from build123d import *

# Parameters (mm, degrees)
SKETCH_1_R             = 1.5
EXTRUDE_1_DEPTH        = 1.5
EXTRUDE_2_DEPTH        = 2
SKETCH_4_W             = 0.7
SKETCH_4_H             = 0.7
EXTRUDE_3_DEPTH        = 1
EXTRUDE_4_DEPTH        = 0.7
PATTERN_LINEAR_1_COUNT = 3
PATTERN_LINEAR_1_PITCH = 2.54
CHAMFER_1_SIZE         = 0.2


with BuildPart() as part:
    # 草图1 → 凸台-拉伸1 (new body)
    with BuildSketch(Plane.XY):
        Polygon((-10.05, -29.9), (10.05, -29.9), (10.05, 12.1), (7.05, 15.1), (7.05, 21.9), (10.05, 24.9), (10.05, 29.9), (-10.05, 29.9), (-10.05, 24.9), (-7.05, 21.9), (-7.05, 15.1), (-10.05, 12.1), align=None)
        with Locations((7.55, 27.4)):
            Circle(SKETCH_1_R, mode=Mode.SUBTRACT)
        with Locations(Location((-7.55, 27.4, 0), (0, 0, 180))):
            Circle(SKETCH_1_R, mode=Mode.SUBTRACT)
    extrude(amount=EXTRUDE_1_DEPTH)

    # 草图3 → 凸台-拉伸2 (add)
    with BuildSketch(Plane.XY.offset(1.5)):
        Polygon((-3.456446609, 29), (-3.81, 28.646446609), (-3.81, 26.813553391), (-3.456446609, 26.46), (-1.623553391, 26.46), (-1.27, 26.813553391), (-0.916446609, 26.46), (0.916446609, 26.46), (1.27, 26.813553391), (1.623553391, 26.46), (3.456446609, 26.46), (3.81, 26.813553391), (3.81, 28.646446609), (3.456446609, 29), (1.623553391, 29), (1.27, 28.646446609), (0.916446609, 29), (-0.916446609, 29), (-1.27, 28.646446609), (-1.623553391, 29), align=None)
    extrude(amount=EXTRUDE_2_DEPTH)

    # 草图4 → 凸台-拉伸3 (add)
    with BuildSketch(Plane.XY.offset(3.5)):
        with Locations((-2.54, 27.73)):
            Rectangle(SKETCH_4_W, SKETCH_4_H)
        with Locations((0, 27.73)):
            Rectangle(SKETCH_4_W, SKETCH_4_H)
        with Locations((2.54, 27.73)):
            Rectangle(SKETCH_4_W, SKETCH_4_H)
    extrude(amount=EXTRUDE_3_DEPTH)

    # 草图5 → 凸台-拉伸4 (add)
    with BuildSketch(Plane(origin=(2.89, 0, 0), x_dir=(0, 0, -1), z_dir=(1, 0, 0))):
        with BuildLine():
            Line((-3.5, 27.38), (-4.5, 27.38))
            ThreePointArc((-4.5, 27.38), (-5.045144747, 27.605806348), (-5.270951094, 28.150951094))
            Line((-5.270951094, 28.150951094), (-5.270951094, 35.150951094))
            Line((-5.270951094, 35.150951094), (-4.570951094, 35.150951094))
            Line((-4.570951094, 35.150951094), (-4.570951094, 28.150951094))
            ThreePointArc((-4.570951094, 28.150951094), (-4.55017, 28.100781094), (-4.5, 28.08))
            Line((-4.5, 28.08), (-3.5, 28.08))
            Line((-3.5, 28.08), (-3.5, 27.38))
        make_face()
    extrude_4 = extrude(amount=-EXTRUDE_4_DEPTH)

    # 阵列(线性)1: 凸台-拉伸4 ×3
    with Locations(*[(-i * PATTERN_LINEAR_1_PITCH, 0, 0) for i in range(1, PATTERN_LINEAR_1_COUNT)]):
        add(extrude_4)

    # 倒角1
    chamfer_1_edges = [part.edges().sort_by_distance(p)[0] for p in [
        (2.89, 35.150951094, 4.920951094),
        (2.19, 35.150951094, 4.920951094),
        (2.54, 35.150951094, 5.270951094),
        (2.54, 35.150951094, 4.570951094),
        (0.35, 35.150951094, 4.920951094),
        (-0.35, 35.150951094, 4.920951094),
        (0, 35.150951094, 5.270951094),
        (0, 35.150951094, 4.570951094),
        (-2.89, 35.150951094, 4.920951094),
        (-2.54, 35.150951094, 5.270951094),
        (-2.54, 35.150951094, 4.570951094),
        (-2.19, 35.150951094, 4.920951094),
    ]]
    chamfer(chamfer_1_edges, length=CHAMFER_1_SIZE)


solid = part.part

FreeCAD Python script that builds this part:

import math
import FreeCAD as App
import Part
import Sketcher
from FreeCAD import Vector
Q = App.Units.Quantity


def edges_at(feature, points):
    """Names of the edges that pass closest to the given points."""
    edges = feature.Shape.Edges
    near = lambda p: min(range(len(edges)), key=lambda i: edges[i].distToShape(Part.Vertex(*p))[0])
    return sorted({f"Edge{near(p) + 1}" for p in points})


def add_polygon(sketch, points):
    """Adds a closed chain of lines whose ends are joined by coincident constraints."""
    first, n = sketch.GeometryCount, len(points)
    for a, b in zip(points, points[1:] + points[:1]):
        sketch.addGeometry(Part.LineSegment(App.Vector(*a, 0), App.Vector(*b, 0)), False)
    for i in range(n):
        sketch.addConstraint(Sketcher.Constraint("Coincident", first + i, 2, first + (i + 1) % n, 1))

doc = App.newDocument("Part")
body = doc.addObject("PartDesign::Body", "Body")

sketch1 = doc.addObject("Sketcher::SketchObject", "Sketch")
body.addObject(sketch1)
sketch1.AttachmentSupport = (doc.XY_Plane, [""])
sketch1.MapMode = "FlatFace"
add_polygon(sketch1, [(-10.1, -29.9), (10.1, -29.9), (10.1, 12.1), (7, 15.1), (7, 21.9), (10.1, 24.9), (10.1, 29.9), (-10.1, 29.9), (-10.1, 24.9), (-7, 21.9), (-7, 15.1), (-10.1, 12.1)])
sketch1.addGeometry(Part.Circle(Vector(-7.5, 27.4, 0), Vector(0, 0, 1), 1.5), False)
sketch1.addGeometry(Part.Circle(Vector(7.5, 27.4, 0), Vector(0, 0, 1), 1.5), False)
sketch1.addConstraint([
    Sketcher.Constraint("Horizontal", 0),
    Sketcher.Constraint("Vertical", 1),
    Sketcher.Constraint("Vertical", 3),
    Sketcher.Constraint("Vertical", 5),
    Sketcher.Constraint("Horizontal", 6),
    Sketcher.Constraint("Vertical", 7),
    Sketcher.Constraint("Vertical", 9),
    Sketcher.Constraint("Vertical", 11),
    Sketcher.Constraint("Equal", 12, 13),
    Sketcher.Constraint("Symmetric", 0, 2, 6, 2, -1, 1),
    Sketcher.Constraint("Symmetric", 12, 3, 13, 3, -2),
    Sketcher.Constraint("Symmetric", 4, 2, 7, 2, -2),
    Sketcher.Constraint("Symmetric", 3, 2, 8, 2, -2),
    Sketcher.Constraint("Symmetric", 1, 2, 10, 2, -2),
    Sketcher.Constraint("Perpendicular", 2, 4),
    Sketcher.Constraint("Perpendicular", 4, 8),
    Sketcher.Constraint("Perpendicular", 8, 10),
    Sketcher.Constraint("Diameter", 12, Q("3 mm")),
    Sketcher.Constraint("DistanceY", 1, 1, 1, 2, Q("42 mm")),
    Sketcher.Constraint("DistanceY", 5, 1, 5, 2, Q("5 mm")),
    Sketcher.Constraint("DistanceX", 0, 1, 0, 2, Q("20.1 mm")),
    Sketcher.Constraint("DistanceY", 3, 1, 3, 2, Q("6.8 mm")),
    Sketcher.Constraint("DistanceX", 2, 2, 1, 2, Q("3 mm")),
    Sketcher.Constraint("DistanceY", -1, 1, 12, 3, Q("27.4 mm")),
    Sketcher.Constraint("DistanceX", 12, 3, 13, 3, Q("15.1 mm")),
])
pad1 = doc.addObject("PartDesign::Pad", "Pad")
body.addObject(pad1)
pad1.Profile = sketch1
pad1.Length = 1.5

sketch2 = doc.addObject("Sketcher::SketchObject", "Sketch001")
body.addObject(sketch2)
sketch2.AttachmentSupport = (doc.XY_Plane, [""])
sketch2.MapMode = "FlatFace"
sketch2.AttachmentOffset = App.Placement(Vector(0, 0, 1.5), App.Rotation())
add_polygon(sketch2, [(-3.5, 29), (-3.8, 28.6), (-3.8, 26.8), (-3.5, 26.5), (-1.6, 26.5), (-1.3, 26.8), (-0.9, 26.5), (0.9, 26.5), (1.3, 26.8), (1.6, 26.5), (3.5, 26.5), (3.8, 26.8), (3.8, 28.6), (3.5, 29), (1.6, 29), (1.3, 28.6), (0.9, 29), (-0.9, 29), (-1.3, 28.6), (-1.6, 29)])
sketch2.addConstraint([
    Sketcher.Constraint("Vertical", 1),
    Sketcher.Constraint("Horizontal", 3),
    Sketcher.Constraint("Horizontal", 6),
    Sketcher.Constraint("Horizontal", 9),
    Sketcher.Constraint("Vertical", 11),
    Sketcher.Constraint("Horizontal", 13),
    Sketcher.Constraint("Horizontal", 16),
    Sketcher.Constraint("Horizontal", 19),
    Sketcher.Constraint("Symmetric", 4, 2, 7, 2, -2),
    Sketcher.Constraint("Symmetric", 3, 2, 8, 2, -2),
    Sketcher.Constraint("Symmetric", 1, 2, 10, 2, -2),
    Sketcher.Constraint("Symmetric", 14, 2, 17, 2, -2),
    Sketcher.Constraint("Symmetric", 13, 2, 18, 2, -2),
    Sketcher.Constraint("Perpendicular", 0, 2),
    Sketcher.Constraint("Perpendicular", 2, 4),
    Sketcher.Constraint("Perpendicular", 4, 5),
    Sketcher.Constraint("Perpendicular", 5, 7),
    Sketcher.Constraint("Perpendicular", 7, 8),
    Sketcher.Constraint("Perpendicular", 8, 10),
    Sketcher.Constraint("Perpendicular", 10, 12),
    Sketcher.Constraint("Perpendicular", 12, 14),
    Sketcher.Constraint("Perpendicular", 14, 15),
    Sketcher.Constraint("Perpendicular", 15, 17),
    Sketcher.Constraint("Horizontal", 1, 2, 4, 2),
    Sketcher.Constraint("Horizontal", 3, 2, 5, 2),
    Sketcher.Constraint("Horizontal", 0, 2, 11, 2),
    Sketcher.Constraint("Horizontal", 11, 2, 14, 2),
    Sketcher.Constraint("Horizontal", 13, 2, 15, 2),
    Sketcher.Constraint("Vertical", 9, 2, 12, 2),
    Sketcher.Constraint("Vertical", 8, 2, 13, 2),
    Sketcher.Constraint("Equal", 3, 6),
    Sketcher.Constraint("Equal", 19, 1),
    Sketcher.Constraint("DistanceY", -1, 1, 12, 2, Q("29 mm")),
    Sketcher.Constraint("Distance", 0, Q("0.5 mm")),
    Sketcher.Constraint("DistanceX", 0, 2, -1, 1, Q("3.81 mm")),
])
pad2 = doc.addObject("PartDesign::Pad", "Pad001")
body.addObject(pad2)
pad2.Profile = sketch2
pad2.Length = 2

sketch3 = doc.addObject("Sketcher::SketchObject", "Sketch002")
body.addObject(sketch3)
sketch3.AttachmentSupport = (doc.XY_Plane, [""])
sketch3.MapMode = "FlatFace"
sketch3.AttachmentOffset = App.Placement(Vector(0, 0, 3.5), App.Rotation())
add_polygon(sketch3, [(-2.9, 28.1), (-2.9, 27.4), (-2.2, 27.4), (-2.2, 28.1)])
add_polygon(sketch3, [(-0.3, 28.1), (-0.3, 27.4), (0.3, 27.4), (0.3, 28.1)])
add_polygon(sketch3, [(2.2, 28.1), (2.2, 27.4), (2.9, 27.4), (2.9, 28.1)])
sketch3.addConstraint([
    Sketcher.Constraint("Vertical", 0),
    Sketcher.Constraint("Horizontal", 1),
    Sketcher.Constraint("Vertical", 2),
    Sketcher.Constraint("Horizontal", 3),
    Sketcher.Constraint("Vertical", 4),
    Sketcher.Constraint("Horizontal", 5),
    Sketcher.Constraint("Vertical", 6),
    Sketcher.Constraint("Horizontal", 7),
    Sketcher.Constraint("Vertical", 8),
    Sketcher.Constraint("Horizontal", 9),
    Sketcher.Constraint("Vertical", 10),
    Sketcher.Constraint("Horizontal", 11),
    Sketcher.Constraint("Symmetric", 1, 2, 8, 2, -2),
    Sketcher.Constraint("Symmetric", 3, 2, 10, 2, -2),
    Sketcher.Constraint("Horizontal", 1, 2, 4, 2),
    Sketcher.Constraint("Horizontal", 3, 2, 6, 2),
    Sketcher.Constraint("Equal", 3, 5),
    Sketcher.Constraint("Equal", 11, 0),
    Sketcher.Constraint("DistanceX", 1, 1, 1, 2, Q("0.7 mm")),
    Sketcher.Constraint("DistanceX", 0, 2, -1, 1, Q("2.89 mm")),
    Sketcher.Constraint("DistanceY", -1, 1, 0, 2, Q("27.38 mm")),
    Sketcher.Constraint("DistanceX", 4, 2, -1, 1, Q("0.35 mm")),
])
pad3 = doc.addObject("PartDesign::Pad", "Pad002")
body.addObject(pad3)
pad3.Profile = sketch3
pad3.Length = 1

sketch4 = doc.addObject("Sketcher::SketchObject", "Sketch003")
body.addObject(sketch4)
sketch4.AttachmentSupport = (doc.YZ_Plane, [""])
sketch4.MapMode = "FlatFace"
sketch4.AttachmentOffset = App.Placement(Vector(0, 0, 2.89), App.Rotation())
sketch4.addGeometry([
    Part.LineSegment(Vector(27.38, 4.5, 0), Vector(27.38, 3.5, 0)),
    Part.LineSegment(Vector(27.38, 3.5, 0), Vector(28.08, 3.5, 0)),
    Part.LineSegment(Vector(28.08, 3.5, 0), Vector(28.08, 4.5, 0)),
    Part.ArcOfCircle(Part.Circle(Vector(28.15, 4.5, 0), Vector(0, 0, 1), 0.07), math.radians(90), math.radians(180)),
    Part.LineSegment(Vector(28.15, 4.57, 0), Vector(35.15, 4.57, 0)),
    Part.LineSegment(Vector(35.15, 4.57, 0), Vector(35.15, 5.27, 0)),
    Part.LineSegment(Vector(35.15, 5.27, 0), Vector(28.15, 5.27, 0)),
    Part.ArcOfCircle(Part.Circle(Vector(28.15, 4.5, 0), Vector(0, 0, 1), 0.77), math.radians(90), math.radians(180)),
], False)
sketch4.addConstraint([
    Sketcher.Constraint("Coincident", 0, 2, 1, 1),
    Sketcher.Constraint("Coincident", 1, 2, 2, 1),
    Sketcher.Constraint("Tangent", 2, 2, 3, 2),
    Sketcher.Constraint("Tangent", 3, 1, 4, 1),
    Sketcher.Constraint("Coincident", 4, 2, 5, 1),
    Sketcher.Constraint("Coincident", 5, 2, 6, 1),
    Sketcher.Constraint("Tangent", 6, 2, 7, 1),
    Sketcher.Constraint("Tangent", 7, 2, 0, 1),
    Sketcher.Constraint("Vertical", 0),
    Sketcher.Constraint("Horizontal", 1),
    Sketcher.Constraint("Vertical", 2),
    Sketcher.Constraint("Horizontal", 4),
    Sketcher.Constraint("Vertical", 5),
    Sketcher.Constraint("Horizontal", 6),
    Sketcher.Constraint("Coincident", 7, 3, 3, 3),
    Sketcher.Constraint("DistanceX", 4, 1, 4, 2, Q("7 mm")),
    Sketcher.Constraint("DistanceY", 0, 2, 0, 1, Q("1 mm")),
    Sketcher.Constraint("DistanceX", 1, 1, 1, 2, Q("0.7 mm")),
    Sketcher.Constraint("DistanceY", -1, 1, 3, 3, Q("4.5 mm")),
    Sketcher.Constraint("DistanceX", -1, 1, 0, 2, Q("27.38 mm")),
    Sketcher.Constraint("Radius", 3, Q("0.070951 mm")),
])
pad4 = doc.addObject("PartDesign::Pad", "Pad003")
body.addObject(pad4)
pad4.Profile = sketch4
pad4.Length = 0.7
pad4.Reversed = True
doc.recompute()

linearpattern = doc.addObject("PartDesign::LinearPattern", "LinearPattern")
body.addObject(linearpattern)
linearpattern.Originals = [pad4]
linearpattern.Direction = (doc.X_Axis, [""])
linearpattern.Mode = "offset"
linearpattern.Offset = 2.54
linearpattern.Occurrences = 3
linearpattern.Reversed = True
body.Tip = linearpattern
doc.recompute()

chamfer = doc.addObject("PartDesign::Chamfer", "Chamfer")
body.addObject(chamfer)
chamfer.Base = (linearpattern, edges_at(linearpattern, [
    (2.89, 35.151, 4.921),
    (2.19, 35.151, 4.921),
    (2.54, 35.151, 5.271),
    (2.54, 35.151, 4.571),
    (0.35, 35.151, 4.921),
    (-0.35, 35.151, 4.921),
    (0, 35.151, 5.271),
    (0, 35.151, 4.571),
    (-2.89, 35.151, 4.921),
    (-2.54, 35.151, 5.271),
    (-2.54, 35.151, 4.571),
    (-2.19, 35.151, 4.921),
]))
chamfer.Size = 0.2

doc.recompute()
